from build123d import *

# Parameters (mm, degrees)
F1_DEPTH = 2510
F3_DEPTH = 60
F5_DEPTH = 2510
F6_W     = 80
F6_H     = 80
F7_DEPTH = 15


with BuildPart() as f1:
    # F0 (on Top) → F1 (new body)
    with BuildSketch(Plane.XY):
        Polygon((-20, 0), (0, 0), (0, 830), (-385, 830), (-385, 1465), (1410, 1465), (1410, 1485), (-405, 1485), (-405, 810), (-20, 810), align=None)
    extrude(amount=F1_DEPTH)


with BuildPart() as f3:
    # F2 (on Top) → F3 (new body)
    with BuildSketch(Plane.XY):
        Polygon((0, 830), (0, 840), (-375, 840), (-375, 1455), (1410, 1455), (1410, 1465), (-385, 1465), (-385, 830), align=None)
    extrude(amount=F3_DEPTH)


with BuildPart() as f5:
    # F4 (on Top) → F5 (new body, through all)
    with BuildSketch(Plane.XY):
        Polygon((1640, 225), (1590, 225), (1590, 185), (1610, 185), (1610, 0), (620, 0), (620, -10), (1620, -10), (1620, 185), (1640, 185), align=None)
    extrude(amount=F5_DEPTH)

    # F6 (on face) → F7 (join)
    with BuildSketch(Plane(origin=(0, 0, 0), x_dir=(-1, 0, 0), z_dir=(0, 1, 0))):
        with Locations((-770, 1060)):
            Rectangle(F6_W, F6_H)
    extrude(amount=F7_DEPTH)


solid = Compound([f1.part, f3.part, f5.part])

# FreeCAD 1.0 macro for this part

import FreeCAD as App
import Part
import Sketcher
Q = App.Units.Quantity


def add_polygon(sketch, points):
    """Adds a closed chain of lines whose ends are joined by coincident constraints."""
    first, n = sketch.GeometryCount, len(points)
    for a, b in zip(points, points[1:] + points[:1]):
        sketch.addGeometry(Part.LineSegment(App.Vector(*a, 0), App.Vector(*b, 0)), False)
    for i in range(n):
        sketch.addConstraint(Sketcher.Constraint("Coincident", first + i, 2, first + (i + 1) % n, 1))

doc = App.newDocument("Part")
body = doc.addObject("PartDesign::Body", "Body")

sketch1 = doc.addObject("Sketcher::SketchObject", "Sketch")
body.addObject(sketch1)
sketch1.AttachmentSupport = (doc.XY_Plane, [""])
sketch1.MapMode = "FlatFace"
add_polygon(sketch1, [(-20, 0), (0, 0), (0, 830), (-385, 830), (-385, 1465), (1410, 1465), (1410, 1485), (-405, 1485), (-405, 810), (-20, 810)])
sketch1.addConstraint(Sketcher.Constraint("Horizontal", 0))
sketch1.addConstraint(Sketcher.Constraint("Vertical", 1))
sketch1.addConstraint(Sketcher.Constraint("Horizontal", 2))
sketch1.addConstraint(Sketcher.Constraint("Vertical", 3))
sketch1.addConstraint(Sketcher.Constraint("Horizontal", 4))
sketch1.addConstraint(Sketcher.Constraint("Vertical", 5))
sketch1.addConstraint(Sketcher.Constraint("Horizontal", 6))
sketch1.addConstraint(Sketcher.Constraint("Vertical", 7))
sketch1.addConstraint(Sketcher.Constraint("Horizontal", 8))
sketch1.addConstraint(Sketcher.Constraint("Vertical", 9))
sketch1.addConstraint(Sketcher.Constraint("Coincident", 0, 2, -1, 1))
sketch1.addConstraint(Sketcher.Constraint("Equal", 2, 8))
sketch1.addConstraint(Sketcher.Constraint("Equal", 0, 5))
sketch1.addConstraint(Sketcher.Constraint("DistanceX", 0, 1, 0, 2, Q("20 mm")))
sketch1.addConstraint(Sketcher.Constraint("DistanceX", 2, 2, 2, 1, Q("385 mm")))
sketch1.addConstraint(Sketcher.Constraint("DistanceX", 4, 1, 4, 2, Q("1795 mm")))
sketch1.addConstraint(Sketcher.Constraint("DistanceY", 1, 1, 1, 2, Q("830 mm")))
sketch1.addConstraint(Sketcher.Constraint("DistanceY", 3, 1, 3, 2, Q("635 mm")))
sketch1.addConstraint(Sketcher.Constraint("DistanceY", 7, 2, 7, 1, Q("675 mm")))
pad1 = doc.addObject("PartDesign::Pad", "Pad")
body.addObject(pad1)
pad1.Profile = sketch1
pad1.Length = 2510
body2 = doc.addObject("PartDesign::Body", "Body001")

sketch2 = doc.addObject("Sketcher::SketchObject", "Sketch001")
body2.addObject(sketch2)
sketch2.AttachmentSupport = (doc.getObject("XY_Plane001"), [""])
sketch2.MapMode = "FlatFace"
add_polygon(sketch2, [(0, 830), (0, 840), (-375, 840), (-375, 1455), (1410, 1455), (1410, 1465), (-385, 1465), (-385, 830)])
sketch2.addConstraint(Sketcher.Constraint("Vertical", 0))
sketch2.addConstraint(Sketcher.Constraint("Horizontal", 1))
sketch2.addConstraint(Sketcher.Constraint("Vertical", 2))
sketch2.addConstraint(Sketcher.Constraint("Horizontal", 3))
sketch2.addConstraint(Sketcher.Constraint("Vertical", 4))
sketch2.addConstraint(Sketcher.Constraint("Horizontal", 5))
sketch2.addConstraint(Sketcher.Constraint("Vertical", 6))
sketch2.addConstraint(Sketcher.Constraint("Horizontal", 7))
sketch2.addConstraint(Sketcher.Constraint("PointOnObject", 0, 2, -2))
sketch2.addConstraint(Sketcher.Constraint("Equal", 0, 4))
sketch2.addConstraint(Sketcher.Constraint("DistanceX", 1, 2, 1, 1, Q("375 mm")))
sketch2.addConstraint(Sketcher.Constraint("DistanceX", 3, 1, 3, 2, Q("1785 mm")))
sketch2.addConstraint(Sketcher.Constraint("DistanceX", 5, 2, 5, 1, Q("1795 mm")))
sketch2.addConstraint(Sketcher.Constraint("DistanceY", 0, 1, 0, 2, Q("10 mm")))
sketch2.addConstraint(Sketcher.Constraint("DistanceY", 2, 1, 2, 2, Q("615 mm")))
sketch2.addConstraint(Sketcher.Constraint("DistanceY", -1, 1, 0, 2, Q("840 mm")))
pad2 = doc.addObject("PartDesign::Pad", "Pad001")
body2.addObject(pad2)
pad2.Profile = sketch2
pad2.Length = 60
body3 = doc.addObject("PartDesign::Body", "Body002")

sketch3 = doc.addObject("Sketcher::SketchObject", "Sketch002")
body3.addObject(sketch3)
sketch3.AttachmentSupport = (doc.getObject("XY_Plane002"), [""])
sketch3.MapMode = "FlatFace"
add_polygon(sketch3, [(1640, 225), (1590, 225), (1590, 185), (1610, 185), (1610, 0), (620, 0), (620, -10), (1620, -10), (1620, 185), (1640, 185)])
sketch3.addConstraint(Sketcher.Constraint("Horizontal", 0))
sketch3.addConstraint(Sketcher.Constraint("Vertical", 1))
sketch3.addConstraint(Sketcher.Constraint("Horizontal", 2))
sketch3.addConstraint(Sketcher.Constraint("Vertical", 3))
sketch3.addConstraint(Sketcher.Constraint("Horizontal", 4))
sketch3.addConstraint(Sketcher.Constraint("Vertical", 5))
sketch3.addConstraint(Sketcher.Constraint("Horizontal", 6))
sketch3.addConstraint(Sketcher.Constraint("Vertical", 7))
sketch3.addConstraint(Sketcher.Constraint("Horizontal", 8))
sketch3.addConstraint(Sketcher.Constraint("Vertical", 9))
sketch3.addConstraint(Sketcher.Constraint("PointOnObject", 3, 2, -1))
sketch3.addConstraint(Sketcher.Constraint("Horizontal", 2, 2, 7, 2))
sketch3.addConstraint(Sketcher.Constraint("Equal", 2, 8))
sketch3.addConstraint(Sketcher.Constraint("DistanceX", 0, 2, 0, 1, Q("50 mm")))
sketch3.addConstraint(Sketcher.Constraint("DistanceX", 2, 1, 2, 2, Q("20 mm")))
sketch3.addConstraint(Sketcher.Constraint("DistanceX", 4, 2, 4, 1, Q("990 mm")))
sketch3.addConstraint(Sketcher.Constraint("DistanceY", 1, 2, 1, 1, Q("40 mm")))
sketch3.addConstraint(Sketcher.Constraint("DistanceY", 3, 2, 3, 1, Q("185 mm")))
sketch3.addConstraint(Sketcher.Constraint("DistanceY", 5, 2, 5, 1, Q("10 mm")))
sketch3.addConstraint(Sketcher.Constraint("DistanceX", -1, 1, 0, 2, Q("1590 mm")))
pad3 = doc.addObject("PartDesign::Pad", "Pad002")
body3.addObject(pad3)
pad3.Profile = sketch3
pad3.Length = 2510

sketch4 = doc.addObject("Sketcher::SketchObject", "Sketch003")
body3.addObject(sketch4)
sketch4.AttachmentSupport = (doc.getObject("XZ_Plane002"), [""])
sketch4.MapMode = "FlatFace"
add_polygon(sketch4, [(810, 1100), (810, 1020), (730, 1020), (730, 1100)])
sketch4.addConstraint(Sketcher.Constraint("Vertical", 0))
sketch4.addConstraint(Sketcher.Constraint("Horizontal", 1))
sketch4.addConstraint(Sketcher.Constraint("Vertical", 2))
sketch4.addConstraint(Sketcher.Constraint("Horizontal", 3))
sketch4.addConstraint(Sketcher.Constraint("Equal", 3, 0))
sketch4.addConstraint(Sketcher.Constraint("DistanceX", 1, 2, 1, 1, Q("80 mm")))
sketch4.addConstraint(Sketcher.Constraint("DistanceX", -1, 1, 0, 2, Q("810 mm")))
sketch4.addConstraint(Sketcher.Constraint("DistanceY", -1, 1, 0, 2, Q("1020 mm")))
pad4 = doc.addObject("PartDesign::Pad", "Pad003")
body3.addObject(pad4)
pad4.Profile = sketch4
pad4.Length = 15
pad4.Reversed = True

doc.recompute()
